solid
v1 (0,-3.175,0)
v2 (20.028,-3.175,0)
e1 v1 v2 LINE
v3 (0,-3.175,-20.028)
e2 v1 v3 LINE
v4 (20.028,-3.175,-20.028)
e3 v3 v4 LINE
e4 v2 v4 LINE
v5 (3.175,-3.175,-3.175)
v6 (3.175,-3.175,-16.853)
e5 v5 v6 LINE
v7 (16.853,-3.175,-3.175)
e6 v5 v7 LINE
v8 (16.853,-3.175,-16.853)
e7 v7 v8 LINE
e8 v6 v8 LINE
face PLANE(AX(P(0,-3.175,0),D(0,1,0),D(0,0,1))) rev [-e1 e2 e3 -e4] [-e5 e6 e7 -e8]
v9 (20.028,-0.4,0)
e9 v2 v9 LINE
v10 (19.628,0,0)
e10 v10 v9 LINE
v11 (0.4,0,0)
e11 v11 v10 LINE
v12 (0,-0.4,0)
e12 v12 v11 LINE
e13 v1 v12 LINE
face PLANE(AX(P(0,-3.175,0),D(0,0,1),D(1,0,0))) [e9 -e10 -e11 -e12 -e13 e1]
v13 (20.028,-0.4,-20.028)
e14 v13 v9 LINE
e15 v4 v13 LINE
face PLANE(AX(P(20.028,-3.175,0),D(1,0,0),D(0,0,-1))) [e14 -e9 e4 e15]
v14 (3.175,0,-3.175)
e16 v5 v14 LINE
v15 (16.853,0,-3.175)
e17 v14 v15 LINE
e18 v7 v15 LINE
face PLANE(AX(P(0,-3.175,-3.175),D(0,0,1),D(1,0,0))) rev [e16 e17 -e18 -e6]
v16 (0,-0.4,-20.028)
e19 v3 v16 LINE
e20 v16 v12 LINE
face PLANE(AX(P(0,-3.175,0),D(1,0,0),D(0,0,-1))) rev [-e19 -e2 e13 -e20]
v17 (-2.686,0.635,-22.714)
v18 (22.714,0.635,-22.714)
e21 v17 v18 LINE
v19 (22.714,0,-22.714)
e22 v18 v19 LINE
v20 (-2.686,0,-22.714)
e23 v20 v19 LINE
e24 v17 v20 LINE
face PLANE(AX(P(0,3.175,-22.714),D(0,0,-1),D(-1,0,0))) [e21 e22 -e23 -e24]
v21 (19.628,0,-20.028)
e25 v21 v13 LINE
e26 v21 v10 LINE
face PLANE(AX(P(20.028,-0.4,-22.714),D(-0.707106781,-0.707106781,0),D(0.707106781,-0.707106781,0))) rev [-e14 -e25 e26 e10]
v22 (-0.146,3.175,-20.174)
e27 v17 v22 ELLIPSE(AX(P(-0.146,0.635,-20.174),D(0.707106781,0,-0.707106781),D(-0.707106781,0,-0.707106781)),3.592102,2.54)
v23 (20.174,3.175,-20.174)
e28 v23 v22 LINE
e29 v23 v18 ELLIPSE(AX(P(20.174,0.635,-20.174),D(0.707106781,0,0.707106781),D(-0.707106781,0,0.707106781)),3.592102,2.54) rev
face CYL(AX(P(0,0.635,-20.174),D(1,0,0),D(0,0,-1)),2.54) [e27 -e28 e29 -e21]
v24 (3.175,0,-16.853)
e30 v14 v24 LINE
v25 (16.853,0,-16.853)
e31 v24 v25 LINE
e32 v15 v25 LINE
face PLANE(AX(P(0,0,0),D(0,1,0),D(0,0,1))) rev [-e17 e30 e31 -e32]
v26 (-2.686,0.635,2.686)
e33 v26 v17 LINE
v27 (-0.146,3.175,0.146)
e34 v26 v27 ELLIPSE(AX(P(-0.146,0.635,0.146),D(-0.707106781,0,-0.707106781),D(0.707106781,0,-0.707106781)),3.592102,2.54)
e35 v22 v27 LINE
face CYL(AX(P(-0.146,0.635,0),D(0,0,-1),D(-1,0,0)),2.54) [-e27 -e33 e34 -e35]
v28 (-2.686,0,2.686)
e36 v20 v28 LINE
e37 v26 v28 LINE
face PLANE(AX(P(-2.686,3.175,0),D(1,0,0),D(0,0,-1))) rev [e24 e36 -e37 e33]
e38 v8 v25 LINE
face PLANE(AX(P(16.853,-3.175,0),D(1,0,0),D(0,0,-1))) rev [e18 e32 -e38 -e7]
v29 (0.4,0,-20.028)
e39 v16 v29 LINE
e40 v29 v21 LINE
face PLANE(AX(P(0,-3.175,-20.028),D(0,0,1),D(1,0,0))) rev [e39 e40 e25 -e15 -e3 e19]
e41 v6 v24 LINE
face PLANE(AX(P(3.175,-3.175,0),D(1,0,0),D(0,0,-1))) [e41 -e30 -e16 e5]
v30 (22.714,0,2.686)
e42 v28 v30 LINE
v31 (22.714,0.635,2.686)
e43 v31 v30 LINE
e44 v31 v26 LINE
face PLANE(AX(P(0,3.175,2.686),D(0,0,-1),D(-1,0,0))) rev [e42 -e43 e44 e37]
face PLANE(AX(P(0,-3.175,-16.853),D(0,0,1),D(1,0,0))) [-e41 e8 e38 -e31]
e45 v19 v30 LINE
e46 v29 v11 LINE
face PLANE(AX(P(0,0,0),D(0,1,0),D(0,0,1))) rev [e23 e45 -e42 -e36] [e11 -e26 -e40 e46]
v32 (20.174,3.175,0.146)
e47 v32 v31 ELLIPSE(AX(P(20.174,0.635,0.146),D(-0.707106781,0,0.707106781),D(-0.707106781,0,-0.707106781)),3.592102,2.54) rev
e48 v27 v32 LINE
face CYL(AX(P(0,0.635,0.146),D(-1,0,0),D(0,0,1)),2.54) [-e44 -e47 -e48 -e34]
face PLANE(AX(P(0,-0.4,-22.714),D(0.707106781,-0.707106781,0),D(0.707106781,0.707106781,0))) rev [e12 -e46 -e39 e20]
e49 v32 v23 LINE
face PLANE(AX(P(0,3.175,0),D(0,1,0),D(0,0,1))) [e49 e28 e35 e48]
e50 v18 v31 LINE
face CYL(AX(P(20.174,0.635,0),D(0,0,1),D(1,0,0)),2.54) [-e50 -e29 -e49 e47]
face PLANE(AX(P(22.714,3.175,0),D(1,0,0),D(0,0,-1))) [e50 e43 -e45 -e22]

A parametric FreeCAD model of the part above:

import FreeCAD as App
import Part
import Sketcher
from FreeCAD import Vector
Q = App.Units.Quantity


def edges_at(feature, points):
    """Names of the edges that pass closest to the given points."""
    edges = feature.Shape.Edges
    near = lambda p: min(range(len(edges)), key=lambda i: edges[i].distToShape(Part.Vertex(*p))[0])
    return sorted({f"Edge{near(p) + 1}" for p in points})

doc = App.newDocument("Part")
params = doc.addObject("Spreadsheet::Sheet", "Params")
for row, (alias, value) in enumerate([
    ("pad1_length", "0.125 in"),
    ("sketch2_width", "1 in"),
    ("pad2_length", "0.125 in"),
    ("fillet_radius", "0.1 in"),
], start=1):
    params.set(f"A{row}", alias)
    params.set(f"B{row}", "=" + value)
    params.setAlias(f"B{row}", alias)

body = doc.addObject("PartDesign::Body", "Body")

# Sketch on XZ plane
sketch1 = body.newObject("Sketcher::SketchObject", "Sketch")
sketch1.AttachmentSupport = (doc.getObject("XZ_Plane"), [""])
sketch1.MapMode = "FlatFace"
sketch1.addGeometry(Part.LineSegment(Vector(0, -20.028, 0), Vector(0, 0, 0)), False)
sketch1.addGeometry(Part.LineSegment(Vector(0, 0, 0), Vector(20.028, 0, 0)), False)
sketch1.addGeometry(Part.LineSegment(Vector(20.028, 0, 0), Vector(20.028, -20.028, 0)), False)
sketch1.addGeometry(Part.LineSegment(Vector(20.028, -20.028, 0), Vector(0, -20.028, 0)), False)
sketch1.addGeometry(Part.LineSegment(Vector(16.853, -3.175, 0), Vector(3.175, -3.175, 0)), False)
sketch1.addGeometry(Part.LineSegment(Vector(3.175, -3.175, 0), Vector(3.175, -16.853, 0)), False)
sketch1.addGeometry(Part.LineSegment(Vector(3.175, -16.853, 0), Vector(16.853, -16.853, 0)), False)
sketch1.addGeometry(Part.LineSegment(Vector(16.853, -16.853, 0), Vector(16.853, -3.175, 0)), False)
sketch1.addConstraint(Sketcher.Constraint("Coincident", 0, 2, 1, 1))
sketch1.addConstraint(Sketcher.Constraint("Coincident", 1, 2, 2, 1))
sketch1.addConstraint(Sketcher.Constraint("Coincident", 2, 2, 3, 1))
sketch1.addConstraint(Sketcher.Constraint("Coincident", 3, 2, 0, 1))
sketch1.addConstraint(Sketcher.Constraint("Coincident", 4, 2, 5, 1))
sketch1.addConstraint(Sketcher.Constraint("Coincident", 5, 2, 6, 1))
sketch1.addConstraint(Sketcher.Constraint("Coincident", 6, 2, 7, 1))
sketch1.addConstraint(Sketcher.Constraint("Coincident", 7, 2, 4, 1))
sketch1.addConstraint(Sketcher.Constraint("Vertical", 0))
sketch1.addConstraint(Sketcher.Constraint("Horizontal", 1))
sketch1.addConstraint(Sketcher.Constraint("Vertical", 2))
sketch1.addConstraint(Sketcher.Constraint("Horizontal", 3))
sketch1.addConstraint(Sketcher.Constraint("Horizontal", 4))
sketch1.addConstraint(Sketcher.Constraint("Vertical", 5))
sketch1.addConstraint(Sketcher.Constraint("Horizontal", 6))
sketch1.addConstraint(Sketcher.Constraint("Vertical", 7))
sketch1.addConstraint(Sketcher.Constraint("Coincident", 0, 2, -1, 1))
sketch1.addConstraint(Sketcher.Constraint("Equal", 3, 0))
sketch1.addConstraint(Sketcher.Constraint("Equal", 6, 5))
sketch1.addConstraint(Sketcher.Constraint("DistanceX", -1, 1, 4, 2, Q("0.125 in")))
sketch1.addConstraint(Sketcher.Constraint("DistanceY", 4, 2, -1, 1, Q("0.125 in")))
sketch1.addConstraint(Sketcher.Constraint("DistanceY", 3, 2, 5, 2, Q("0.125 in")))
sketch1.addConstraint(Sketcher.Constraint("DistanceX", 1, 1, 1, 2, 20.028))
pad1 = body.newObject("PartDesign::Pad", "Pad")
pad1.Profile = sketch1
pad1.setExpression("Length", "Params.pad1_length")

# Sketch on XZ plane
sketch2 = body.newObject("Sketcher::SketchObject", "Sketch001")
sketch2.AttachmentSupport = (doc.getObject("XZ_Plane"), [""])
sketch2.MapMode = "FlatFace"
sketch2.addGeometry(Part.LineSegment(Vector(-2.686, -22.714, 0), Vector(-2.686, 2.686, 0)), False)
sketch2.addGeometry(Part.LineSegment(Vector(-2.686, 2.686, 0), Vector(22.714, 2.686, 0)), False)
sketch2.addGeometry(Part.LineSegment(Vector(22.714, 2.686, 0), Vector(22.714, -22.714, 0)), False)
sketch2.addGeometry(Part.LineSegment(Vector(22.714, -22.714, 0), Vector(-2.686, -22.714, 0)), False)
sketch2.addConstraint(Sketcher.Constraint("Coincident", 0, 2, 1, 1))
sketch2.addConstraint(Sketcher.Constraint("Coincident", 1, 2, 2, 1))
sketch2.addConstraint(Sketcher.Constraint("Coincident", 2, 2, 3, 1))
sketch2.addConstraint(Sketcher.Constraint("Coincident", 3, 2, 0, 1))
sketch2.addConstraint(Sketcher.Constraint("Vertical", 0))
sketch2.addConstraint(Sketcher.Constraint("Horizontal", 1))
sketch2.addConstraint(Sketcher.Constraint("Vertical", 2))
sketch2.addConstraint(Sketcher.Constraint("Horizontal", 3))
sketch2.addConstraint(Sketcher.Constraint("Equal", 3, 0))
sketch2.addConstraint(Sketcher.Constraint("DistanceX", 1, 1, 1, 2, Q("1 in")))
sketch2.addConstraint(Sketcher.Constraint("DistanceX", 0, 2, -1, 1, 2.686))
sketch2.addConstraint(Sketcher.Constraint("DistanceY", -1, 1, 0, 2, 2.686))
sketch2.setExpression("Constraints[9]", "Params.sketch2_width")
pad2 = body.newObject("PartDesign::Pad", "Pad001")
pad2.Profile = sketch2
pad2.setExpression("Length", "Params.pad2_length")
pad2.Reversed = True
doc.recompute()

fillet = body.newObject("PartDesign::Fillet", "Fillet")
fillet.Base = (pad2, edges_at(pad2, [
    (22.714, 3.175, -10.014),
    (10.014, 3.175, -22.714),
    (-2.686, 3.175, -10.014),
    (10.014, 3.175, 2.686),
]))
fillet.setExpression("Radius", "Params.fillet_radius")

# Sketch on XY plane
sketch3 = body.newObject("Sketcher::SketchObject", "Sketch002")
sketch3.AttachmentSupport = (doc.getObject("XY_Plane"), [""])
sketch3.MapMode = "FlatFace"
sketch3.addGeometry(Part.LineSegment(Vector(0, -0.4, 0), Vector(0.4, 0, 0)), False)
sketch3.addGeometry(Part.LineSegment(Vector(0.4, 0, 0), Vector(0, 0, 0)), False)
sketch3.addGeometry(Part.LineSegment(Vector(0, 0, 0), Vector(0, -0.4, 0)), False)
sketch3.addGeometry(Part.LineSegment(Vector(19.628, 0, 0), Vector(20.028, -0.4, 0)), False)
sketch3.addGeometry(Part.LineSegment(Vector(20.028, -0.4, 0), Vector(20.028, 0, 0)), False)
sketch3.addGeometry(Part.LineSegment(Vector(20.028, 0, 0), Vector(19.628, 0, 0)), False)
sketch3.addConstraint(Sketcher.Constraint("Coincident", 0, 2, 1, 1))
sketch3.addConstraint(Sketcher.Constraint("Coincident", 1, 2, 2, 1))
sketch3.addConstraint(Sketcher.Constraint("Coincident", 2, 2, 0, 1))
sketch3.addConstraint(Sketcher.Constraint("Coincident", 3, 2, 4, 1))
sketch3.addConstraint(Sketcher.Constraint("Coincident", 4, 2, 5, 1))
sketch3.addConstraint(Sketcher.Constraint("Coincident", 5, 2, 3, 1))
sketch3.addConstraint(Sketcher.Constraint("Horizontal", 1))
sketch3.addConstraint(Sketcher.Constraint("Vertical", 2))
sketch3.addConstraint(Sketcher.Constraint("Vertical", 4))
sketch3.addConstraint(Sketcher.Constraint("Horizontal", 5))
sketch3.addConstraint(Sketcher.Constraint("Coincident", 1, 2, -1, 1))
sketch3.addConstraint(Sketcher.Constraint("PointOnObject", 4, 2, -1))
sketch3.addConstraint(Sketcher.Constraint("Perpendicular", 0, 3))
sketch3.addConstraint(Sketcher.Constraint("Horizontal", 2, 2, 3, 2))
sketch3.addConstraint(Sketcher.Constraint("Equal", 1, 5))
sketch3.addConstraint(Sketcher.Constraint("DistanceX", 1, 2, 1, 1, 0.4))
sketch3.addConstraint(Sketcher.Constraint("DistanceX", -1, 1, 3, 2, 20.028))
pocket1 = body.newObject("PartDesign::Pocket", "Pocket")
pocket1.Profile = sketch3
pocket1.Type = "ThroughAll"

doc.recompute()
